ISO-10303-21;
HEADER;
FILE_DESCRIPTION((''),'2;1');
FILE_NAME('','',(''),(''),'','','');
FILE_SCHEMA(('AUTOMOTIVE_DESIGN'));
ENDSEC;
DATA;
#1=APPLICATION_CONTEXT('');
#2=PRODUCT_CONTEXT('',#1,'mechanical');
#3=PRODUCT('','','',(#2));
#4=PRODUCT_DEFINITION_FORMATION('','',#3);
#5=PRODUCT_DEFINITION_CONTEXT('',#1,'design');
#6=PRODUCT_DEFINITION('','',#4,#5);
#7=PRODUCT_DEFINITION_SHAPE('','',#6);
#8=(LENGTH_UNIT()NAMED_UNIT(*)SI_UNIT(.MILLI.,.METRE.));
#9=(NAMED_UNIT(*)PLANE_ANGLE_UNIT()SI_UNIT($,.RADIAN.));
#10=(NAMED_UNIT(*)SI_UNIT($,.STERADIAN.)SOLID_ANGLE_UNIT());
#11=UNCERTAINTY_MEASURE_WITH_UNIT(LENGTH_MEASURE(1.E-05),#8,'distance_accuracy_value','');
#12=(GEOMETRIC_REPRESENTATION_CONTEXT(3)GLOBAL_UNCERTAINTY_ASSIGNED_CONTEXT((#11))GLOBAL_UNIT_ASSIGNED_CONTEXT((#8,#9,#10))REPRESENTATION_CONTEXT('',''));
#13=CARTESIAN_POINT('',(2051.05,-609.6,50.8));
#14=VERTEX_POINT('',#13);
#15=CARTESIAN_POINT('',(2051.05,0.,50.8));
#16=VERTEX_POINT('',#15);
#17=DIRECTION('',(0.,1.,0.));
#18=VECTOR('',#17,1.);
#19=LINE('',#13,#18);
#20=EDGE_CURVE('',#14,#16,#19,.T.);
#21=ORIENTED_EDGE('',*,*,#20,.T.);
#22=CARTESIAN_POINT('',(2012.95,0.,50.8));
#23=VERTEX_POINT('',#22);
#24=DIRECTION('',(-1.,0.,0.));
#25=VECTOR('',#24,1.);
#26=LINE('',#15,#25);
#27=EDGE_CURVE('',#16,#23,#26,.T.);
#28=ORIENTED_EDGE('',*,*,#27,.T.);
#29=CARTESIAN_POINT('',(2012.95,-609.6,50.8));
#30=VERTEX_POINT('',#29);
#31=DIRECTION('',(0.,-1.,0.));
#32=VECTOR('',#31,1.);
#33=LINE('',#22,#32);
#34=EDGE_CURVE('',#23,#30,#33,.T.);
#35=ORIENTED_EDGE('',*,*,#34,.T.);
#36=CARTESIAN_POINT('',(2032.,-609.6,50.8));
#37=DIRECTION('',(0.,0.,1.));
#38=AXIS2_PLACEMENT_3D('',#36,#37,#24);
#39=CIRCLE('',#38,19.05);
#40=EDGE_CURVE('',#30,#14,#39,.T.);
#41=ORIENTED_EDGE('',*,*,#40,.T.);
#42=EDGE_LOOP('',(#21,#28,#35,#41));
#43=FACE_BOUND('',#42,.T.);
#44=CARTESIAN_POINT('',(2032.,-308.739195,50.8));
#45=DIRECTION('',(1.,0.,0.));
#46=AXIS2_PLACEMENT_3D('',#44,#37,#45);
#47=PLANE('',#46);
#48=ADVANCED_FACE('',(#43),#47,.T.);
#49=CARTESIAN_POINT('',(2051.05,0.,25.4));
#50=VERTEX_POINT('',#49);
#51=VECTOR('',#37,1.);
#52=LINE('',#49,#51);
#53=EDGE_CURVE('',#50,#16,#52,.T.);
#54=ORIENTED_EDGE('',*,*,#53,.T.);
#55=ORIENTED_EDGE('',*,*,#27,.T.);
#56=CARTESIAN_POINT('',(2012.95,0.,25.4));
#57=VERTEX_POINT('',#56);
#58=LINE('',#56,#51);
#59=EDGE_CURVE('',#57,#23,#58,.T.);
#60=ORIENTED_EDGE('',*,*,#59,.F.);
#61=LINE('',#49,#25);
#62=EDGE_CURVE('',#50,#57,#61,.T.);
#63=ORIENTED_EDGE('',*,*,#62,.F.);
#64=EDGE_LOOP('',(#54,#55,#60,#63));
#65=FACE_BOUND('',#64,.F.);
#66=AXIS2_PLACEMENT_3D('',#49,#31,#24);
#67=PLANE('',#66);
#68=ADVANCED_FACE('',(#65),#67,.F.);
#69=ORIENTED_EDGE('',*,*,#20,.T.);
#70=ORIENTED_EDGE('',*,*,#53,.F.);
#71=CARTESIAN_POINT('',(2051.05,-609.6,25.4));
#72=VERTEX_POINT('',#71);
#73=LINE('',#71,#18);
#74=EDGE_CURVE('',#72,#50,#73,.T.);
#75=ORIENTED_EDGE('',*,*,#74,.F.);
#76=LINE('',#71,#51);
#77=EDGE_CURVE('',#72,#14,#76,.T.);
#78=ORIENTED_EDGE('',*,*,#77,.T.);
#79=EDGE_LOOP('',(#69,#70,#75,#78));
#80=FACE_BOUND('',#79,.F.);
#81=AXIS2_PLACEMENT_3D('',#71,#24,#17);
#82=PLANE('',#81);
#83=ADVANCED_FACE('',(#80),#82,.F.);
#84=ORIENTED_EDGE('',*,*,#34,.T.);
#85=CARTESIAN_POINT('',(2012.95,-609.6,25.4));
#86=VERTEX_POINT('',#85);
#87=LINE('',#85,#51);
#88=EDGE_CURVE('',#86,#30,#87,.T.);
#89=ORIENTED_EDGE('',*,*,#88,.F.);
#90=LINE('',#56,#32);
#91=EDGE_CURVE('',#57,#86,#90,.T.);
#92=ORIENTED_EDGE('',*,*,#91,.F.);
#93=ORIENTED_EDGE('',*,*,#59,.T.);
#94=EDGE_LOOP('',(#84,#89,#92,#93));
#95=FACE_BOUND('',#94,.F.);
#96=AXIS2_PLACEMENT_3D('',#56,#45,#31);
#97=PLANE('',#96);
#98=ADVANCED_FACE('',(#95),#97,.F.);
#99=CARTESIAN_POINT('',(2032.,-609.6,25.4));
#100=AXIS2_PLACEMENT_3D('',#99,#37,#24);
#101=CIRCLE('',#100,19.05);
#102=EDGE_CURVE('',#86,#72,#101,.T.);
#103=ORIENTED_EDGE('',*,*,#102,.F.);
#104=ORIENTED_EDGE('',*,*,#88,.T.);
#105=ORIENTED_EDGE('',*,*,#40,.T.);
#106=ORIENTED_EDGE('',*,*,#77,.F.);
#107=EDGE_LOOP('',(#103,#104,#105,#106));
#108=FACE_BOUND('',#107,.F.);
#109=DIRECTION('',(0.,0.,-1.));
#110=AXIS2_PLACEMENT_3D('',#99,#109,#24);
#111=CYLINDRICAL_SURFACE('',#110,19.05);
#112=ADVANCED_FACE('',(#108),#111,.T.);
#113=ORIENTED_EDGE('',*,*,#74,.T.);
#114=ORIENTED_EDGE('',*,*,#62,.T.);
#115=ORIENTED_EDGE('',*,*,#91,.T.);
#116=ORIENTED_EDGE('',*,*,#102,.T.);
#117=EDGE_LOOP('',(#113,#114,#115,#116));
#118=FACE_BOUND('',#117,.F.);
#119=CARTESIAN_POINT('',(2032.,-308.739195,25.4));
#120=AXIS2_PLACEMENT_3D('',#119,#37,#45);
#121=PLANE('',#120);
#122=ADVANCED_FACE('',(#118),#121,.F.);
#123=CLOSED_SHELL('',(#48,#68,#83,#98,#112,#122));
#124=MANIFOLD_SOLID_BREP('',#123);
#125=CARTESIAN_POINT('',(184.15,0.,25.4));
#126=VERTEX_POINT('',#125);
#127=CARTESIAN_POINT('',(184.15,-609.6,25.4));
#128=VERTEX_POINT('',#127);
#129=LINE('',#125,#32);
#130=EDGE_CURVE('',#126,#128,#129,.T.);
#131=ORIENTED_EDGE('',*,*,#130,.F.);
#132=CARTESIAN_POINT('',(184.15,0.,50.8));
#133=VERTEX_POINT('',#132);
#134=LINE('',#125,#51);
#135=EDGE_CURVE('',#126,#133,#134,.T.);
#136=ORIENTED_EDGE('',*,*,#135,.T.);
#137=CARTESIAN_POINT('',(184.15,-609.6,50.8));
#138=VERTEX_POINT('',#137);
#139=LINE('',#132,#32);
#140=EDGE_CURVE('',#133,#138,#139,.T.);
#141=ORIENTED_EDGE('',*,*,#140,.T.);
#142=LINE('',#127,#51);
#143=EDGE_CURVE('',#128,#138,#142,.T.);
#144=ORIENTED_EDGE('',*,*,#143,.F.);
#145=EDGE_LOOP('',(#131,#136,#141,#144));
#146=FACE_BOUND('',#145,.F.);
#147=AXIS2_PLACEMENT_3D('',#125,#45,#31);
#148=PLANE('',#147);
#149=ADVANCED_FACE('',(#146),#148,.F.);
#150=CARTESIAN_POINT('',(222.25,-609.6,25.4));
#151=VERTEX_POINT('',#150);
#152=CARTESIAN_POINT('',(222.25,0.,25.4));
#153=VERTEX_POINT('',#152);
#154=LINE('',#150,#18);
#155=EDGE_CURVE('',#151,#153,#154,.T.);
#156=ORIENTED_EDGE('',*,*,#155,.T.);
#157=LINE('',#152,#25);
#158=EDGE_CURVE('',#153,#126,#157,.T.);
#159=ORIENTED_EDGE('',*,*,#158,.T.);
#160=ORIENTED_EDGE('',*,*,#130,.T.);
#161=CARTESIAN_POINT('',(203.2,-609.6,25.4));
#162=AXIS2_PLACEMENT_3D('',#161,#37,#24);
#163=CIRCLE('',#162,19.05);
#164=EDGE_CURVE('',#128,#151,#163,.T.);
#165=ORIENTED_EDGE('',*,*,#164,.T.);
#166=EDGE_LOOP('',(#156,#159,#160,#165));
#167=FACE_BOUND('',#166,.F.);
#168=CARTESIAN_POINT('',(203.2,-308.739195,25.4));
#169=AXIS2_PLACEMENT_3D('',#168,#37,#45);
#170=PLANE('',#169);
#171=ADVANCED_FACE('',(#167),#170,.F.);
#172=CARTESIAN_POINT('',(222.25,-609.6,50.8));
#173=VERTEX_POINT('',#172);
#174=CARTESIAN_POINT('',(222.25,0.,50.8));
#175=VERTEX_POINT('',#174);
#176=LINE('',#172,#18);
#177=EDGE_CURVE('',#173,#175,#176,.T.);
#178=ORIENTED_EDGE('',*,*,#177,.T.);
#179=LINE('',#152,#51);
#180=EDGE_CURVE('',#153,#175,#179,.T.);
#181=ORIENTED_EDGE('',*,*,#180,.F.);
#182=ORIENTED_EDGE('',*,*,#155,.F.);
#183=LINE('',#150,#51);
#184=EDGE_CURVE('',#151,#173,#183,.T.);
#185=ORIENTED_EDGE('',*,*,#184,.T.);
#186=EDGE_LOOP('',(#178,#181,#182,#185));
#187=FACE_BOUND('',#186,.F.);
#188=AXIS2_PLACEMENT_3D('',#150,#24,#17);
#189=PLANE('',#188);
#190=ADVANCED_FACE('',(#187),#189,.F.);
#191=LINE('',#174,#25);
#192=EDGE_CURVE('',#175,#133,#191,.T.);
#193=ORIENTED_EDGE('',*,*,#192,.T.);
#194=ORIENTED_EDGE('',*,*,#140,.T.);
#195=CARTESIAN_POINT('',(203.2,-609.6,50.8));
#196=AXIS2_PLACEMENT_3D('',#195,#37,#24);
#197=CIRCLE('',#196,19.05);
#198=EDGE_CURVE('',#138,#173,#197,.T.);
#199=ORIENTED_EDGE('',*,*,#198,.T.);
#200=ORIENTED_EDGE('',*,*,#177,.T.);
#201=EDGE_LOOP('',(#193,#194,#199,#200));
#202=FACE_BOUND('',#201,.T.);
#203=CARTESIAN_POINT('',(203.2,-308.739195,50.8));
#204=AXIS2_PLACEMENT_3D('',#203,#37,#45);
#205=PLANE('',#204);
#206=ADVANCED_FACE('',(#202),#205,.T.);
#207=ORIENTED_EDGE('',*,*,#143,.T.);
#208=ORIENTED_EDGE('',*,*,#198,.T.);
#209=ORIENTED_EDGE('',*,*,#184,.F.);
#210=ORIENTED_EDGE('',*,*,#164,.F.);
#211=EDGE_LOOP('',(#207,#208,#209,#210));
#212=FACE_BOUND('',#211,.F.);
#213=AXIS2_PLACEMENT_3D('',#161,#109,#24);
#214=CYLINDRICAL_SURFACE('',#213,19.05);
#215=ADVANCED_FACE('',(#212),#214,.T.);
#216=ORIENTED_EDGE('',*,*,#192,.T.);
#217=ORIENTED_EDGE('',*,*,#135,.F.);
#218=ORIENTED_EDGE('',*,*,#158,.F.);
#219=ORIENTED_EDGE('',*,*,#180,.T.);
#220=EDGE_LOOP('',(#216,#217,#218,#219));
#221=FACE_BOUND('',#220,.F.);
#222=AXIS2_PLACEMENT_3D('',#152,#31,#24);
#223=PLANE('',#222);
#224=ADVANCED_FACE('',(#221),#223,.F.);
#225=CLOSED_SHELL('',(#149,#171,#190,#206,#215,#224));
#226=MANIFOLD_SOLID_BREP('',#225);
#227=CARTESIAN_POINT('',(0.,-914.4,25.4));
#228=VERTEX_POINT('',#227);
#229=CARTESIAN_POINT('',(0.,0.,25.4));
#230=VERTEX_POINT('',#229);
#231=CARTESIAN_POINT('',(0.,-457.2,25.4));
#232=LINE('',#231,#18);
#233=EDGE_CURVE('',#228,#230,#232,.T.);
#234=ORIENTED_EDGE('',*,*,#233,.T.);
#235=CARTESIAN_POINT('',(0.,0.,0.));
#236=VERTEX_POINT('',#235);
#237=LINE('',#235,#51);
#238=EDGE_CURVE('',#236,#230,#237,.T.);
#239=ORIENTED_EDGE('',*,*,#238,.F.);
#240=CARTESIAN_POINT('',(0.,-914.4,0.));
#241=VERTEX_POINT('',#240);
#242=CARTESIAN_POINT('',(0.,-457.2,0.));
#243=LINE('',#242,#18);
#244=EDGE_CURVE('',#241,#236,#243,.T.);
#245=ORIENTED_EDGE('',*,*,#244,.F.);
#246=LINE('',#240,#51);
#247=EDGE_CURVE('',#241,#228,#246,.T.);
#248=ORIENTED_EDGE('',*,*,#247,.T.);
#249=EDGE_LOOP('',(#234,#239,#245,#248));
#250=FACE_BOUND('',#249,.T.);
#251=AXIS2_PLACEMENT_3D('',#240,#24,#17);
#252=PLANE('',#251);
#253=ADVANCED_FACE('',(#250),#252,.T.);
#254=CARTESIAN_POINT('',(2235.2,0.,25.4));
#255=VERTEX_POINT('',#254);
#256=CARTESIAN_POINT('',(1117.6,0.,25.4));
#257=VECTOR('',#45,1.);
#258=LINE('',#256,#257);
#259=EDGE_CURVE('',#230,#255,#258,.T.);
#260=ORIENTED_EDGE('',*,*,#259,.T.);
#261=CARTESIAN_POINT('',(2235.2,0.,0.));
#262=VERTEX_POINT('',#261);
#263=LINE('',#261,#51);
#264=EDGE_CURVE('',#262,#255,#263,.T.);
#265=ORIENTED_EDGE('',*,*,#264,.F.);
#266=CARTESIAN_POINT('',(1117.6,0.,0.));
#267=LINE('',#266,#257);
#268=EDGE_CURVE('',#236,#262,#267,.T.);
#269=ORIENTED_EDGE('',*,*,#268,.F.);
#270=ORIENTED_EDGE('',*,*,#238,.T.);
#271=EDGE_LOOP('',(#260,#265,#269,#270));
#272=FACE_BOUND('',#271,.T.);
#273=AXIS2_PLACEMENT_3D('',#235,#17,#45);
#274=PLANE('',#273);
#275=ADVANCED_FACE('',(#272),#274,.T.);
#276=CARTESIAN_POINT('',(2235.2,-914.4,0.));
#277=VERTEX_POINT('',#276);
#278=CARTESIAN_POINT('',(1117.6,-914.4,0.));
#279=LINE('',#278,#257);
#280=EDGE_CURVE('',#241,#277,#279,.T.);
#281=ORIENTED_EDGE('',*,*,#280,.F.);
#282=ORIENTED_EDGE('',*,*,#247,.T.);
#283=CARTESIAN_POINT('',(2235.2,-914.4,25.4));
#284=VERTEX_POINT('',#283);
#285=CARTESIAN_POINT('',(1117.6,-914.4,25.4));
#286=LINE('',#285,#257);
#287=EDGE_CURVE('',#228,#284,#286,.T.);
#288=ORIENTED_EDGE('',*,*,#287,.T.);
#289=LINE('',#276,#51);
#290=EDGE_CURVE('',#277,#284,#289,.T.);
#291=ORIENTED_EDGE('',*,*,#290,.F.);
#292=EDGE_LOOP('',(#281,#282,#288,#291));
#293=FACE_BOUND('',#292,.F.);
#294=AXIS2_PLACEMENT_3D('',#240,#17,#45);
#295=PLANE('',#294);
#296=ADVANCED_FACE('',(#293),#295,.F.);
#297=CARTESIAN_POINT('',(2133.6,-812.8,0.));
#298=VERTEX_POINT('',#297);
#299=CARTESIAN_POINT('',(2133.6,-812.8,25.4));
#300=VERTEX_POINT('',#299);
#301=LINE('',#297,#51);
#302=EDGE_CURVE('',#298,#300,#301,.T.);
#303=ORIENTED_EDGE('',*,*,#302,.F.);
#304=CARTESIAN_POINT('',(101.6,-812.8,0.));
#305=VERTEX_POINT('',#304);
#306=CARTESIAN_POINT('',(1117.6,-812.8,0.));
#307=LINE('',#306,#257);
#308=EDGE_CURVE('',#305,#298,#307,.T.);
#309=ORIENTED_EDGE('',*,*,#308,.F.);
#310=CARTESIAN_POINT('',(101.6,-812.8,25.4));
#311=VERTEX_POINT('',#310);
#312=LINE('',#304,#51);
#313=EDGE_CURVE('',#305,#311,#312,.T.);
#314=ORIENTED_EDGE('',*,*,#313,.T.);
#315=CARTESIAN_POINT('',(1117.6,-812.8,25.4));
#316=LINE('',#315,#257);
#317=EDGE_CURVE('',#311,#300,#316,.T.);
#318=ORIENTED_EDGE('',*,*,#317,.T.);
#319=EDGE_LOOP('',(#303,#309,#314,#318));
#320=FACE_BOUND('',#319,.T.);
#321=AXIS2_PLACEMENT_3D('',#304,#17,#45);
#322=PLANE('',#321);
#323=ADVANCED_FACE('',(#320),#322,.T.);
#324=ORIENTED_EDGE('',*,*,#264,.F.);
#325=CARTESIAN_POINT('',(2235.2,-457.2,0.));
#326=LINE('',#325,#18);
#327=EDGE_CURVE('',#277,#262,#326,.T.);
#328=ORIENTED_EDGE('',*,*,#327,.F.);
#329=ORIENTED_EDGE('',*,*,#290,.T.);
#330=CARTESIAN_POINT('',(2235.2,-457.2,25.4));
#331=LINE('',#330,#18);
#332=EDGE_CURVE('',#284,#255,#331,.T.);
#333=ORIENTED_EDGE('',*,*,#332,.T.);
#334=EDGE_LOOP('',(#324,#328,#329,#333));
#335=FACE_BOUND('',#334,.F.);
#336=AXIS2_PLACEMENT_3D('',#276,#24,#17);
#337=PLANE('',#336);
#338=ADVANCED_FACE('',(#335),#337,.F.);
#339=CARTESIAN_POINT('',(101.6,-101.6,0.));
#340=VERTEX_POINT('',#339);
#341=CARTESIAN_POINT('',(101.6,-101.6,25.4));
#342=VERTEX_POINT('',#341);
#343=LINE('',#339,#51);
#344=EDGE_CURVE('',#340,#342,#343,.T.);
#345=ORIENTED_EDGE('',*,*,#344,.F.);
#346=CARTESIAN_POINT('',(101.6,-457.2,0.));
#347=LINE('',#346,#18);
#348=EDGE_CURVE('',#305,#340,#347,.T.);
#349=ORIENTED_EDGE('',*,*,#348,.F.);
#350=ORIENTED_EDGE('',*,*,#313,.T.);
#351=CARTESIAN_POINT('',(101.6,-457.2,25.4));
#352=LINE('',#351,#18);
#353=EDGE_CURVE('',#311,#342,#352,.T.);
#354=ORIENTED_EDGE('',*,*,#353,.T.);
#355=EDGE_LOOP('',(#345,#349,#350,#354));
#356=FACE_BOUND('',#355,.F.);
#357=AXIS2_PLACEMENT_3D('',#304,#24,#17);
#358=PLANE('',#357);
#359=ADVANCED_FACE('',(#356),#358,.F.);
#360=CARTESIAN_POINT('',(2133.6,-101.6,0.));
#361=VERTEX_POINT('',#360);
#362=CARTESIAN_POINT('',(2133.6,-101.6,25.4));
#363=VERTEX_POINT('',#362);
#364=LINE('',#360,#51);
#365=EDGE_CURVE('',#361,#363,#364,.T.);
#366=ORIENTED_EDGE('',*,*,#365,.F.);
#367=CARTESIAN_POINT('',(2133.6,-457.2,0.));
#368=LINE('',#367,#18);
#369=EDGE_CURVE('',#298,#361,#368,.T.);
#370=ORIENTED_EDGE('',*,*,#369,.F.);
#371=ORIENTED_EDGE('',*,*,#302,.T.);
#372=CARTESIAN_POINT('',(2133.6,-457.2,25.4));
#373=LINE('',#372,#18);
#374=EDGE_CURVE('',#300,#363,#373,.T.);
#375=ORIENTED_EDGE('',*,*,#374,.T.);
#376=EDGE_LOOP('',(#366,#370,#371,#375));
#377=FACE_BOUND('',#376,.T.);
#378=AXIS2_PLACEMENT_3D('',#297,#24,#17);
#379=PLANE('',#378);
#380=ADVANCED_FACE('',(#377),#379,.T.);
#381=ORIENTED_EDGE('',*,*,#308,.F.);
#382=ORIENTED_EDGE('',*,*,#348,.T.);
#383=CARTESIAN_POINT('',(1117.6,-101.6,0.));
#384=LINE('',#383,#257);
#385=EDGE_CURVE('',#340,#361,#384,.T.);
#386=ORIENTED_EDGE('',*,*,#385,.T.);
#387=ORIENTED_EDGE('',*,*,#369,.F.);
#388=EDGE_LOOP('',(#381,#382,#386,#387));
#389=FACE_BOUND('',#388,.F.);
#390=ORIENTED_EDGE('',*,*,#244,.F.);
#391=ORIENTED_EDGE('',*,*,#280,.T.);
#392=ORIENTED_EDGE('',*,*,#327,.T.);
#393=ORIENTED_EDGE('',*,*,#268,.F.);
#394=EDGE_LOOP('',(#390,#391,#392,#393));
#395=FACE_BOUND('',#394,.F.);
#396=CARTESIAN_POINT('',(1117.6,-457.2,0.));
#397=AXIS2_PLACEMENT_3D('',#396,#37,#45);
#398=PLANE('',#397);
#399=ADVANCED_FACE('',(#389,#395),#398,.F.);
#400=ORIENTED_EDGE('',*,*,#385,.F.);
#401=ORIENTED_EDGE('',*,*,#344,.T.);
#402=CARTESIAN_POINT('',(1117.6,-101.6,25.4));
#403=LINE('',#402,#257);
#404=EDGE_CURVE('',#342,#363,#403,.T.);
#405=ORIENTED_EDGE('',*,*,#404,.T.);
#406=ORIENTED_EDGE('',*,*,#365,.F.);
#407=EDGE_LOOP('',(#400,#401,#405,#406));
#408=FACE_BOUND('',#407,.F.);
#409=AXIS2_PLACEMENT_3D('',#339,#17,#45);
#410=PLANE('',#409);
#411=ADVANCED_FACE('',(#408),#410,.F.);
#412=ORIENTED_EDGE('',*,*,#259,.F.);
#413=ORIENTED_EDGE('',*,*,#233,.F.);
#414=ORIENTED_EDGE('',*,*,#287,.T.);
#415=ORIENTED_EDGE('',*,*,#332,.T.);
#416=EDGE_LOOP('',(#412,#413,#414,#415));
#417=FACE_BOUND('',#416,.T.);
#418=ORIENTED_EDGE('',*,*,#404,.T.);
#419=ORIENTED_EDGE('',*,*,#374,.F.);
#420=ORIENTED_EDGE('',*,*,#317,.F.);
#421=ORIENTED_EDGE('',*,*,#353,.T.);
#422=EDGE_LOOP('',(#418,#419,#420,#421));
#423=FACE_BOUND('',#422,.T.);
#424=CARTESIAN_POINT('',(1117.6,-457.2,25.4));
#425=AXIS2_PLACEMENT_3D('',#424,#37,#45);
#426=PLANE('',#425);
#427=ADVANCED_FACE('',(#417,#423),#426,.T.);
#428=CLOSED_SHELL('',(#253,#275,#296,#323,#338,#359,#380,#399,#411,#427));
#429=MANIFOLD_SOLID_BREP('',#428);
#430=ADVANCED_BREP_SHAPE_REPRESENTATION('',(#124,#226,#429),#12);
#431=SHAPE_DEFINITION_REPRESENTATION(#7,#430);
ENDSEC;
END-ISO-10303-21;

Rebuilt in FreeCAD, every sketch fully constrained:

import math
import FreeCAD as App
import Part
import Sketcher
from FreeCAD import Vector
Q = App.Units.Quantity


def add_polygon(sketch, points):
    """Adds a closed chain of lines whose ends are joined by coincident constraints."""
    first, n = sketch.GeometryCount, len(points)
    for a, b in zip(points, points[1:] + points[:1]):
        sketch.addGeometry(Part.LineSegment(App.Vector(*a, 0), App.Vector(*b, 0)), False)
    for i in range(n):
        sketch.addConstraint(Sketcher.Constraint("Coincident", first + i, 2, first + (i + 1) % n, 1))

doc = App.newDocument("Part")
body = doc.addObject("PartDesign::Body", "Body")

# Sketch on XY plane
sketch1 = body.newObject("Sketcher::SketchObject", "Sketch")
sketch1.AttachmentSupport = (doc.getObject("XY_Plane"), [""])
sketch1.MapMode = "FlatFace"
add_polygon(sketch1, [(0, 0), (0, -914), (2235, -914), (2235, 0)])  # lines 0-3
add_polygon(sketch1, [(2134, -813), (102, -813), (102, -102), (2134, -102)])  # lines 4-7
sketch1.addConstraint(Sketcher.Constraint("Vertical", 0))
sketch1.addConstraint(Sketcher.Constraint("Horizontal", 1))
sketch1.addConstraint(Sketcher.Constraint("Vertical", 2))
sketch1.addConstraint(Sketcher.Constraint("Horizontal", 3))
sketch1.addConstraint(Sketcher.Constraint("Horizontal", 4))
sketch1.addConstraint(Sketcher.Constraint("Vertical", 5))
sketch1.addConstraint(Sketcher.Constraint("Horizontal", 6))
sketch1.addConstraint(Sketcher.Constraint("Vertical", 7))
sketch1.addConstraint(Sketcher.Constraint("Coincident", 3, 2, -1, 1))
sketch1.addConstraint(Sketcher.Constraint("DistanceX", 1, 1, 1, 2, Q("88 in")))
sketch1.addConstraint(Sketcher.Constraint("DistanceX", 4, 2, 4, 1, Q("80 in")))
sketch1.addConstraint(Sketcher.Constraint("DistanceY", 0, 2, 0, 1, Q("36 in")))
sketch1.addConstraint(Sketcher.Constraint("DistanceY", 5, 1, 5, 2, Q("28 in")))
sketch1.addConstraint(Sketcher.Constraint("DistanceX", -1, 1, 4, 2, Q("4 in")))
sketch1.addConstraint(Sketcher.Constraint("DistanceY", 4, 2, -1, 1, Q("32 in")))
pad1 = body.newObject("PartDesign::Pad", "Pad")
pad1.Profile = sketch1
pad1.Length = Q("1 in")
body2 = doc.addObject("PartDesign::Body", "Body001")

# Sketch on XY plane
sketch2 = body2.newObject("Sketcher::SketchObject", "Sketch001")
sketch2.AttachmentSupport = (doc.getObject("XY_Plane001"), [""])
sketch2.MapMode = "FlatFace"
sketch2.AttachmentOffset = App.Placement(Vector(0, 0, 1 * 25.4), App.Rotation())
sketch2.addGeometry(Part.LineSegment(Vector(222, 0, 0), Vector(184, 0, 0)), False)
sketch2.addGeometry(Part.LineSegment(Vector(184, 0, 0), Vector(184, -610, 0)), False)
sketch2.addGeometry(Part.ArcOfCircle(Part.Circle(Vector(203, -610, 0), Vector(0, 0, 1), 19), math.radians(180), math.radians(360)), False)
sketch2.addGeometry(Part.LineSegment(Vector(222, -610, 0), Vector(222, 0, 0)), False)
sketch2.addConstraint(Sketcher.Constraint("Coincident", 0, 2, 1, 1))
sketch2.addConstraint(Sketcher.Constraint("Tangent", 1, 2, 2, 1))
sketch2.addConstraint(Sketcher.Constraint("Tangent", 2, 2, 3, 1))
sketch2.addConstraint(Sketcher.Constraint("Coincident", 3, 2, 0, 1))
sketch2.addConstraint(Sketcher.Constraint("Horizontal", 0))
sketch2.addConstraint(Sketcher.Constraint("Vertical", 1))
sketch2.addConstraint(Sketcher.Constraint("Vertical", 3))
sketch2.addConstraint(Sketcher.Constraint("PointOnObject", 0, 2, -1))
sketch2.addConstraint(Sketcher.Constraint("DistanceY", 1, 2, 1, 1, Q("24 in")))
sketch2.addConstraint(Sketcher.Constraint("Radius", 2, Q("0.75 in")))
sketch2.addConstraint(Sketcher.Constraint("DistanceX", -1, 1, 2, 3, Q("8 in")))
pad2 = body2.newObject("PartDesign::Pad", "Pad001")
pad2.Profile = sketch2
pad2.Length = Q("1 in")
body3 = doc.addObject("PartDesign::Body", "Body002")

# Sketch on XY plane
sketch3 = body3.newObject("Sketcher::SketchObject", "Sketch002")
sketch3.AttachmentSupport = (doc.getObject("XY_Plane002"), [""])
sketch3.MapMode = "FlatFace"
sketch3.AttachmentOffset = App.Placement(Vector(0, 0, 1 * 25.4), App.Rotation())
sketch3.addGeometry(Part.LineSegment(Vector(2051, 0, 0), Vector(2013, 0, 0)), False)
sketch3.addGeometry(Part.LineSegment(Vector(2013, 0, 0), Vector(2013, -610, 0)), False)
sketch3.addGeometry(Part.ArcOfCircle(Part.Circle(Vector(2032, -610, 0), Vector(0, 0, 1), 19), math.radians(180), math.radians(360)), False)
sketch3.addGeometry(Part.LineSegment(Vector(2051, -610, 0), Vector(2051, 0, 0)), False)
sketch3.addConstraint(Sketcher.Constraint("Coincident", 0, 2, 1, 1))
sketch3.addConstraint(Sketcher.Constraint("Tangent", 1, 2, 2, 1))
sketch3.addConstraint(Sketcher.Constraint("Tangent", 2, 2, 3, 1))
sketch3.addConstraint(Sketcher.Constraint("Coincident", 3, 2, 0, 1))
sketch3.addConstraint(Sketcher.Constraint("Horizontal", 0))
sketch3.addConstraint(Sketcher.Constraint("Vertical", 1))
sketch3.addConstraint(Sketcher.Constraint("Vertical", 3))
sketch3.addConstraint(Sketcher.Constraint("PointOnObject", 0, 2, -1))
sketch3.addConstraint(Sketcher.Constraint("DistanceY", 1, 2, 1, 1, Q("24 in")))
sketch3.addConstraint(Sketcher.Constraint("Radius", 2, Q("0.75 in")))
sketch3.addConstraint(Sketcher.Constraint("DistanceX", -1, 1, 2, 3, Q("80 in")))
pad3 = body3.newObject("PartDesign::Pad", "Pad002")
pad3.Profile = sketch3
pad3.Length = Q("1 in")

doc.recompute()
